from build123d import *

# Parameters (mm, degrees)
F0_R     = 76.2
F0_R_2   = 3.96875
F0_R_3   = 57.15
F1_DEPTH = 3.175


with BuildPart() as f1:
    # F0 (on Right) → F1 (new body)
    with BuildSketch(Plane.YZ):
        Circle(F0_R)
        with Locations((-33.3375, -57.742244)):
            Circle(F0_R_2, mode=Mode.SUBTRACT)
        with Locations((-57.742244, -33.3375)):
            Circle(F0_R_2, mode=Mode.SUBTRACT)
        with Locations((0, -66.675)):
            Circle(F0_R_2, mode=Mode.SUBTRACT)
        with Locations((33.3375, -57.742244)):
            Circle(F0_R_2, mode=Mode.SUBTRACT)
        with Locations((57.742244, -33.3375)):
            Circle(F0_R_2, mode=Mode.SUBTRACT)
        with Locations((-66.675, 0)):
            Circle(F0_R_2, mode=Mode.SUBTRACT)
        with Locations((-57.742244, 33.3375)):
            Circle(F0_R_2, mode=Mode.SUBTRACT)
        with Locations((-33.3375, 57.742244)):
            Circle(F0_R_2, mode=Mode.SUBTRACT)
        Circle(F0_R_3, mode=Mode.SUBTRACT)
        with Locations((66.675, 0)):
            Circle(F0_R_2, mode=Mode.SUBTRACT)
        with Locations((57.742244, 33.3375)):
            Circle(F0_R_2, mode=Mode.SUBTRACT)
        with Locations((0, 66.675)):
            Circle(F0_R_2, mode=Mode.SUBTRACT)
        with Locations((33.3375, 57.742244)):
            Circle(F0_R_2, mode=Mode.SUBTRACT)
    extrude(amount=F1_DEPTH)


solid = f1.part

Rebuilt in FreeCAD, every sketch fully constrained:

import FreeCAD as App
import Part
import Sketcher
Q = App.Units.Quantity

doc = App.newDocument("Part")
body = doc.addObject("PartDesign::Body", "Body")

# Sketch on YZ plane
sketch1 = doc.addObject("Sketcher::SketchObject", "Sketch")
body.addObject(sketch1)
sketch1.AttachmentSupport = (doc.YZ_Plane, [""])
sketch1.MapMode = "FlatFace"
sketch1.addGeometry(Part.Circle(App.Vector(0, 0, 0), App.Vector(0, 0, 1), 76.2), False)
sketch1.addGeometry(Part.Circle(App.Vector(-33.3375, -57.742244, 0), App.Vector(0, 0, 1), 3.96875), False)
sketch1.addGeometry(Part.Circle(App.Vector(-57.742244, -33.3375, 0), App.Vector(0, 0, 1), 3.96875), False)
sketch1.addGeometry(Part.Circle(App.Vector(0, -66.675, 0), App.Vector(0, 0, 1), 3.96875), False)
sketch1.addGeometry(Part.Circle(App.Vector(33.3375, -57.742244, 0), App.Vector(0, 0, 1), 3.96875), False)
sketch1.addGeometry(Part.Circle(App.Vector(57.742244, -33.3375, 0), App.Vector(0, 0, 1), 3.96875), False)
sketch1.addGeometry(Part.Circle(App.Vector(-66.675, 0, 0), App.Vector(0, 0, 1), 3.96875), False)
sketch1.addGeometry(Part.Circle(App.Vector(-57.742244, 33.3375, 0), App.Vector(0, 0, 1), 3.96875), False)
sketch1.addGeometry(Part.Circle(App.Vector(-33.3375, 57.742244, 0), App.Vector(0, 0, 1), 3.96875), False)
sketch1.addGeometry(Part.Circle(App.Vector(0, 0, 0), App.Vector(0, 0, 1), 57.15), False)
sketch1.addGeometry(Part.Circle(App.Vector(66.675, 0, 0), App.Vector(0, 0, 1), 3.96875), False)
sketch1.addGeometry(Part.Circle(App.Vector(57.742244, 33.3375, 0), App.Vector(0, 0, 1), 3.96875), False)
sketch1.addGeometry(Part.Circle(App.Vector(0, 66.675, 0), App.Vector(0, 0, 1), 3.96875), False)
sketch1.addGeometry(Part.Circle(App.Vector(33.3375, 57.742244, 0), App.Vector(0, 0, 1), 3.96875), False)
sketch1.addConstraint(Sketcher.Constraint("Coincident", 0, 3, -1, 1))
sketch1.addConstraint(Sketcher.Constraint("Coincident", 9, 3, -1, 1))
sketch1.addConstraint(Sketcher.Constraint("Equal", 1, 2))
sketch1.addConstraint(Sketcher.Constraint("Equal", 2, 3))
sketch1.addConstraint(Sketcher.Constraint("Equal", 3, 4))
sketch1.addConstraint(Sketcher.Constraint("Equal", 4, 5))
sketch1.addConstraint(Sketcher.Constraint("Equal", 5, 6))
sketch1.addConstraint(Sketcher.Constraint("Equal", 6, 7))
sketch1.addConstraint(Sketcher.Constraint("Equal", 7, 8))
sketch1.addConstraint(Sketcher.Constraint("Equal", 8, 10))
sketch1.addConstraint(Sketcher.Constraint("Equal", 10, 11))
sketch1.addConstraint(Sketcher.Constraint("Equal", 11, 12))
sketch1.addConstraint(Sketcher.Constraint("Equal", 12, 13))
sketch1.addConstraint(Sketcher.Constraint("Symmetric", 5, 3, 7, 3, -1, 1))
sketch1.addConstraint(Sketcher.Constraint("Symmetric", 4, 3, 8, 3, -1, 1))
sketch1.addConstraint(Sketcher.Constraint("Symmetric", 6, 3, 10, 3, -1, 1))
sketch1.addConstraint(Sketcher.Constraint("Symmetric", 2, 3, 11, 3, -1, 1))
sketch1.addConstraint(Sketcher.Constraint("Symmetric", 3, 3, 12, 3, -1, 1))
sketch1.addConstraint(Sketcher.Constraint("Symmetric", 1, 3, 13, 3, -1, 1))
sketch1.addConstraint(Sketcher.Constraint("Symmetric", 1, 3, 4, 3, -2))
sketch1.addConstraint(Sketcher.Constraint("Symmetric", 2, 3, 5, 3, -2))
sketch1.addConstraint(Sketcher.Constraint("PointOnObject", 3, 3, -2))
sketch1.addConstraint(Sketcher.Constraint("PointOnObject", 6, 3, -1))
sketch1.addConstraint(Sketcher.Constraint("Diameter", 0, Q("6 in")))
sketch1.addConstraint(Sketcher.Constraint("Diameter", 9, Q("4.5 in")))
sketch1.addConstraint(Sketcher.Constraint("Diameter", 1, Q("0.3125 in")))
sketch1.addConstraint(Sketcher.Constraint("DistanceX", 1, 3, -1, 1, Q("1.3125 in")))
sketch1.addConstraint(Sketcher.Constraint("DistanceY", 2, 3, -1, 1, Q("1.3125 in")))
sketch1.addConstraint(Sketcher.Constraint("DistanceY", 3, 3, -1, 1, Q("2.625 in")))
sketch1.addConstraint(Sketcher.Constraint("DistanceX", 6, 3, -1, 1, Q("2.625 in")))
sketch1.addConstraint(Sketcher.Constraint("DistanceX", 2, 3, 5, 3, 115.484488))
sketch1.addConstraint(Sketcher.Constraint("DistanceY", 1, 3, 8, 3, 115.484488))
pad1 = doc.addObject("PartDesign::Pad", "Pad")
body.addObject(pad1)
pad1.Profile = sketch1
pad1.Length = Q("0.125 in")

doc.recompute()
